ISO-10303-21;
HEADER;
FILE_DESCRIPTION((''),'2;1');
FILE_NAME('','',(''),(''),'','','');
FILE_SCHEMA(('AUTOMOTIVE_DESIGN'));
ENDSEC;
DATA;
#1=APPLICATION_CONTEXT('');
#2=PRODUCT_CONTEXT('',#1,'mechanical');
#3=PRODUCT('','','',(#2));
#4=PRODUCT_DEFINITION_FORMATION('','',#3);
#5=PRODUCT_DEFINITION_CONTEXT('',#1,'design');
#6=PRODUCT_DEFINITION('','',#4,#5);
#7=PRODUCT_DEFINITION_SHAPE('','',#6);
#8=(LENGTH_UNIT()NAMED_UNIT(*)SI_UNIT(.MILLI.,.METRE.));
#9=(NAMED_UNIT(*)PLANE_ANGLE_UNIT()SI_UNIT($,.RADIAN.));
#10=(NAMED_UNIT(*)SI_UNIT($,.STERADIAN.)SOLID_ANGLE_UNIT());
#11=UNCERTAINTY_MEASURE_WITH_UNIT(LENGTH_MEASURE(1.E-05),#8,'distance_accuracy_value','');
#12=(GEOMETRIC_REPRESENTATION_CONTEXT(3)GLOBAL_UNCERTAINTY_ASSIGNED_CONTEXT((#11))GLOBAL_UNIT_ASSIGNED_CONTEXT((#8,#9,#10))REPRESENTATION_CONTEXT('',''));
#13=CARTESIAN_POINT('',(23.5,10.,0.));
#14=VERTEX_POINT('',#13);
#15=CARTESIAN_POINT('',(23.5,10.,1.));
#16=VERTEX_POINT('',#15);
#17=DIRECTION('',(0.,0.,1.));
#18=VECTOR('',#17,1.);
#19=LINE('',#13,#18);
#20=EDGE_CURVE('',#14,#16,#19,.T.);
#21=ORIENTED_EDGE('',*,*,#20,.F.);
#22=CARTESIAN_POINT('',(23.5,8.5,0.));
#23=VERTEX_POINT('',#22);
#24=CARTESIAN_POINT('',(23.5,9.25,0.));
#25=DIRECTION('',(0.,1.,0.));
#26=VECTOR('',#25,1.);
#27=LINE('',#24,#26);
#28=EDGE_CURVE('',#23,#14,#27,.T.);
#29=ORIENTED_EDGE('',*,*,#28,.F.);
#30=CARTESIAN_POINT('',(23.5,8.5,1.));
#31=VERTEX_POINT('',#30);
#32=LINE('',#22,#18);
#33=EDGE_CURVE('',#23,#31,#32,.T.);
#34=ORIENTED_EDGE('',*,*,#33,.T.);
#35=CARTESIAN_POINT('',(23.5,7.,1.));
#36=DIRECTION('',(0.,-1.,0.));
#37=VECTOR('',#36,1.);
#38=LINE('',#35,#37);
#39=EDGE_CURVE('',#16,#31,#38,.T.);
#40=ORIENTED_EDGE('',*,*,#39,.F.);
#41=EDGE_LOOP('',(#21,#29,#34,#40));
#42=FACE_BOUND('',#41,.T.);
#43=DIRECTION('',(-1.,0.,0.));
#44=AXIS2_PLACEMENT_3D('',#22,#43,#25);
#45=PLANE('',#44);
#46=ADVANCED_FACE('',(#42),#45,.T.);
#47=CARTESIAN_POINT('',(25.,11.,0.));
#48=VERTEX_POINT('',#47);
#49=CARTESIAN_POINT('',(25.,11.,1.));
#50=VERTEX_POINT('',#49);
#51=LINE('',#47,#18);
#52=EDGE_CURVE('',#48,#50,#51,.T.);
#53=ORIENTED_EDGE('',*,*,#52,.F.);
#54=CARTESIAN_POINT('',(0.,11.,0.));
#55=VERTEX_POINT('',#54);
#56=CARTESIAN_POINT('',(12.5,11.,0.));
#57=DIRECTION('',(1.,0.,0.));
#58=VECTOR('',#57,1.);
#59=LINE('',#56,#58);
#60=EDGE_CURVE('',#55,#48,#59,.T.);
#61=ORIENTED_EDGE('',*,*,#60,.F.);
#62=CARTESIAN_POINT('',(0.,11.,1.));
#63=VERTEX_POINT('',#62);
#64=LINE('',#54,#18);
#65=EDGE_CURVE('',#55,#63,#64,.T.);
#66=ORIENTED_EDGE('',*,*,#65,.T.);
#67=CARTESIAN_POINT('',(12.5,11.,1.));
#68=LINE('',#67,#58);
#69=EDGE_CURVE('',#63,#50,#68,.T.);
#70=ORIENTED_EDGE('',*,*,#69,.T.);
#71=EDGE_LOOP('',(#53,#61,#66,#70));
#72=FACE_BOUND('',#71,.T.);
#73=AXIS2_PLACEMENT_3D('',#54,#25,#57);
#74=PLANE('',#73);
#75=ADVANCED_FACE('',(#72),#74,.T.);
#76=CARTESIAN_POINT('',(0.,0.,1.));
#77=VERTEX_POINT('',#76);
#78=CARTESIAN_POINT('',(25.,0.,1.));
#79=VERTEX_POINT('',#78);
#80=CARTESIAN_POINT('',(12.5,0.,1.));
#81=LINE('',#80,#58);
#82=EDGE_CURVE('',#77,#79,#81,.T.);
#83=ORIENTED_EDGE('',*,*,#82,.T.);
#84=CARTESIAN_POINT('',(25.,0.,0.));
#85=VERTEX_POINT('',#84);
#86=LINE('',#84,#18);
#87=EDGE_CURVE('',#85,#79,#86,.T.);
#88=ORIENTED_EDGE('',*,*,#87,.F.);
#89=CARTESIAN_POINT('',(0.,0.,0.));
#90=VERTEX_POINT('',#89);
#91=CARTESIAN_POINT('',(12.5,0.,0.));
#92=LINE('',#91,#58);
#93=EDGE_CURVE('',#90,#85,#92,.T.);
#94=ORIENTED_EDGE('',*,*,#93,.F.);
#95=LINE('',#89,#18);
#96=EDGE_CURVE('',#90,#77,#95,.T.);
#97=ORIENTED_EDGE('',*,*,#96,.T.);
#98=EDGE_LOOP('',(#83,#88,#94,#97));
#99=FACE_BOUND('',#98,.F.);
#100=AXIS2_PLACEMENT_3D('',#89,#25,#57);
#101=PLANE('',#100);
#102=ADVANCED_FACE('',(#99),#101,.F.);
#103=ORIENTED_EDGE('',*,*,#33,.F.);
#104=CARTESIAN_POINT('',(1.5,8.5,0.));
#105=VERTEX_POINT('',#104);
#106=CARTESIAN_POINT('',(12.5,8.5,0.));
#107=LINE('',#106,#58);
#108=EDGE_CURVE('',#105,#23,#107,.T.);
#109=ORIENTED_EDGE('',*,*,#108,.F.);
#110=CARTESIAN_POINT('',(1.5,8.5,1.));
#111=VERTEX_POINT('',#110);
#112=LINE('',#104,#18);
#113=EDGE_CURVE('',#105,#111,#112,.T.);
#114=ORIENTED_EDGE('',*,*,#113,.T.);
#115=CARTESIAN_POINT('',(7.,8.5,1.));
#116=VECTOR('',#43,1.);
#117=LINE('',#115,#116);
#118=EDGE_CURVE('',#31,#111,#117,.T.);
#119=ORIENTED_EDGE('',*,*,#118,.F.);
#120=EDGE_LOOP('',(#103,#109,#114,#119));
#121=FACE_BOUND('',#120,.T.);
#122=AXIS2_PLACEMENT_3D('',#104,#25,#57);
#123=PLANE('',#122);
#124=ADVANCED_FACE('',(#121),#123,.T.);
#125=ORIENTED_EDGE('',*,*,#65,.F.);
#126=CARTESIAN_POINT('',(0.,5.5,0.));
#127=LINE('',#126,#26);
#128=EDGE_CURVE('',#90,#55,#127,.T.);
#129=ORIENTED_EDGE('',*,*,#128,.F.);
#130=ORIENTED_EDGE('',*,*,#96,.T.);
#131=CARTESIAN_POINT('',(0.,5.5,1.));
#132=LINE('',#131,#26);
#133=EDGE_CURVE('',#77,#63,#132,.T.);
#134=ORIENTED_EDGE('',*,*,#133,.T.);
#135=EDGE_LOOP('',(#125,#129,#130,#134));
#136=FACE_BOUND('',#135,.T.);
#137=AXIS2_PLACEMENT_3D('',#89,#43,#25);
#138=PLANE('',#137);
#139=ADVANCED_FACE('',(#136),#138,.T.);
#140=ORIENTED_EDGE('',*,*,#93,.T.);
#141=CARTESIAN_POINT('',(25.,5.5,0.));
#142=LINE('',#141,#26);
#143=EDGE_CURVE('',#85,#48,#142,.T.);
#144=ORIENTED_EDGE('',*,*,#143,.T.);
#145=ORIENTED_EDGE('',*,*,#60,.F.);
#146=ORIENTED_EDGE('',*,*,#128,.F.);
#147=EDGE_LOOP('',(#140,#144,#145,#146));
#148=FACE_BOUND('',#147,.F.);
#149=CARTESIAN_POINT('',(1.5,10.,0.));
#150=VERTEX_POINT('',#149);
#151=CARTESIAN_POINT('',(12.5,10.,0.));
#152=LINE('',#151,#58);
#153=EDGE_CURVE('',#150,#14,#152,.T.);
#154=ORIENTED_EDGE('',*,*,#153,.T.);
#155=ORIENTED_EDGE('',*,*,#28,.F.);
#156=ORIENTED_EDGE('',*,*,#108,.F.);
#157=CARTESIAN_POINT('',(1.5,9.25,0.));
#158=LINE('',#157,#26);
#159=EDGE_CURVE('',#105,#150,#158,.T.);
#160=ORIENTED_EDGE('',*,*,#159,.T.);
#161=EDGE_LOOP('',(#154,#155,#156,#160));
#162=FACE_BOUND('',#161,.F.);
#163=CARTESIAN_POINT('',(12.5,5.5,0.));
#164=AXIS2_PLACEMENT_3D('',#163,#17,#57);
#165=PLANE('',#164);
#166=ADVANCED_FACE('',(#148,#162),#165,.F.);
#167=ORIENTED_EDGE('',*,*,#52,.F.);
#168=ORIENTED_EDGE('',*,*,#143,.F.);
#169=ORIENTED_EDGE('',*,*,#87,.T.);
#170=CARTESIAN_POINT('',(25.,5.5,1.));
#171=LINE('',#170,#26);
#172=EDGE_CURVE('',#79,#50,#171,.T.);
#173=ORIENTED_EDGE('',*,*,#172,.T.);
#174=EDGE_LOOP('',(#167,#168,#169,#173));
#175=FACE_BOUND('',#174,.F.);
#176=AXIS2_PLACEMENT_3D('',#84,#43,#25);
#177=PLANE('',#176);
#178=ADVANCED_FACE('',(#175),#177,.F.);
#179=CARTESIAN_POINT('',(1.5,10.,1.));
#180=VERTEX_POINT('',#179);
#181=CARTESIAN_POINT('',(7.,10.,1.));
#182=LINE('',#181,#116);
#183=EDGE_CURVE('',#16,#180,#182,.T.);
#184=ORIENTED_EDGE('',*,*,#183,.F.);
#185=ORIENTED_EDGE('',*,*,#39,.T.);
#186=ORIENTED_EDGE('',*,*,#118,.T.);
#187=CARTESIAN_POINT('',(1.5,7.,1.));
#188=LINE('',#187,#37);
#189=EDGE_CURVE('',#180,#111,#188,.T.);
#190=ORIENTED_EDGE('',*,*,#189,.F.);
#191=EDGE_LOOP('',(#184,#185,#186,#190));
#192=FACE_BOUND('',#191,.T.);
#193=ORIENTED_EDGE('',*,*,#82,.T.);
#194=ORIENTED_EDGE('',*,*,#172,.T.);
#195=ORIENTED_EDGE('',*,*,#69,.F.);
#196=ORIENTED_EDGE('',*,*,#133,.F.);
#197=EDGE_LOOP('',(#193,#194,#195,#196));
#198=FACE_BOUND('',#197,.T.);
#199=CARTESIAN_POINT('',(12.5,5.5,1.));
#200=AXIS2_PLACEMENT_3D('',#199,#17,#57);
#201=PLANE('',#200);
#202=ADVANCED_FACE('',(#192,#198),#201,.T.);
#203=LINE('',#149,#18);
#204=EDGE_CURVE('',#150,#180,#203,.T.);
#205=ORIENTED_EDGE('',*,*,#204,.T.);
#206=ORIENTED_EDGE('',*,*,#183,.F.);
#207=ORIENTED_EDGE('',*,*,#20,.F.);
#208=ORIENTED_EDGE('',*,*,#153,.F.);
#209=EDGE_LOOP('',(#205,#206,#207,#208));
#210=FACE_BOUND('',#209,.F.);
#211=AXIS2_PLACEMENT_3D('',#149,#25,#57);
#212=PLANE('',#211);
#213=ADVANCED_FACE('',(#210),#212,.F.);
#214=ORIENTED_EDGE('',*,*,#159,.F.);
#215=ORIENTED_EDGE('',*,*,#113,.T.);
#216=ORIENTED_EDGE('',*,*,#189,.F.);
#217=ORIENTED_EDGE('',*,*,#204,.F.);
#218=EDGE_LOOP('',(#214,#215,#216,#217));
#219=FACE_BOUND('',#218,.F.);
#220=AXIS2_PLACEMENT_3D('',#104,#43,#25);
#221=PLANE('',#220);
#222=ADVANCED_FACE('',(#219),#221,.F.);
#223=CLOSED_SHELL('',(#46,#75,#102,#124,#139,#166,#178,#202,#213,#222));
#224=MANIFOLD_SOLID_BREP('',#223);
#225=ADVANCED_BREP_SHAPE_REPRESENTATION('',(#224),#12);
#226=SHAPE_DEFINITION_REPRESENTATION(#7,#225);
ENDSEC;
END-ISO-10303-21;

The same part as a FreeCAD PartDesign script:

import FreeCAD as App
import Part
import Sketcher

V = App.Vector
Q = App.Units.Quantity

doc = App.newDocument("Part")
params = doc.addObject("Spreadsheet::Sheet", "Params")
for row, (alias, value) in enumerate([
    ("sketch1_width", "22 mm"),
    ("sketch1_height", "1.5 mm"),
    ("pad1_length", "2 mm"),
    ("sketch2_width", "25 mm"),
    ("sketch2_height", "11 mm"),
    ("pad2_length", "1 mm"),
], start=1):
    params.set(f"A{row}", alias)
    params.set(f"B{row}", "=" + value)
    params.setAlias(f"B{row}", alias)

body = doc.addObject("PartDesign::Body", "Body")

# Sketch on XY plane
sketch1 = body.newObject("Sketcher::SketchObject", "Sketch")
sketch1.AttachmentSupport = (doc.getObject("XY_Plane"), [""])
sketch1.MapMode = "FlatFace"
sketch1.addGeometry([
    Part.LineSegment(V(1.5, 10, 0), V(1.5, 8.5, 0)),
    Part.LineSegment(V(1.5, 8.5, 0), V(23.5, 8.5, 0)),
    Part.LineSegment(V(23.5, 8.5, 0), V(23.5, 10, 0)),
    Part.LineSegment(V(23.5, 10, 0), V(1.5, 10, 0)),
], False)
sketch1.addConstraint([
    Sketcher.Constraint("Coincident", 0, 2, 1, 1),
    Sketcher.Constraint("Coincident", 1, 2, 2, 1),
    Sketcher.Constraint("Coincident", 2, 2, 3, 1),
    Sketcher.Constraint("Coincident", 3, 2, 0, 1),
    Sketcher.Constraint("Vertical", 0),
    Sketcher.Constraint("Horizontal", 1),
    Sketcher.Constraint("Vertical", 2),
    Sketcher.Constraint("Horizontal", 3),
    Sketcher.Constraint("DistanceX", 1, 1, 1, 2, Q("22 mm")),
    Sketcher.Constraint("DistanceY", 0, 2, 0, 1, Q("1.5 mm")),
    Sketcher.Constraint("DistanceY", -1, 1, 2, 2, Q("10 mm")),
    Sketcher.Constraint("DistanceX", -1, 1, 0, 2, Q("1.5 mm")),
])
sketch1.setExpression("Constraints[8]", "Params.sketch1_width")
sketch1.setExpression("Constraints[9]", "Params.sketch1_height")
pad1 = body.newObject("PartDesign::Pad", "Pad")
pad1.Profile = sketch1
pad1.setExpression("Length", "Params.pad1_length")
body2 = doc.addObject("PartDesign::Body", "Body001")

# Sketch on XY plane
sketch2 = body2.newObject("Sketcher::SketchObject", "Sketch001")
sketch2.AttachmentSupport = (doc.getObject("XY_Plane001"), [""])
sketch2.MapMode = "FlatFace"
sketch2.addGeometry([
    Part.LineSegment(V(0, 11, 0), V(0, 0, 0)),
    Part.LineSegment(V(0, 0, 0), V(25, 0, 0)),
    Part.LineSegment(V(25, 0, 0), V(25, 11, 0)),
    Part.LineSegment(V(25, 11, 0), V(0, 11, 0)),
], False)
sketch2.addConstraint([
    Sketcher.Constraint("Coincident", 0, 2, 1, 1),
    Sketcher.Constraint("Coincident", 1, 2, 2, 1),
    Sketcher.Constraint("Coincident", 2, 2, 3, 1),
    Sketcher.Constraint("Coincident", 3, 2, 0, 1),
    Sketcher.Constraint("Vertical", 0),
    Sketcher.Constraint("Horizontal", 1),
    Sketcher.Constraint("Vertical", 2),
    Sketcher.Constraint("Horizontal", 3),
    Sketcher.Constraint("Coincident", 0, 2, -1, 1),
    Sketcher.Constraint("DistanceX", 1, 1, 1, 2, Q("25 mm")),
    Sketcher.Constraint("DistanceY", 0, 2, 0, 1, Q("11 mm")),
])
sketch2.setExpression("Constraints[9]", "Params.sketch2_width")
sketch2.setExpression("Constraints[10]", "Params.sketch2_height")
pad2 = body2.newObject("PartDesign::Pad", "Pad001")
pad2.Profile = sketch2
pad2.setExpression("Length", "Params.pad2_length")
doc.recompute()

boolean = body2.newObject("PartDesign::Boolean", "Boolean")
boolean.Type = "Cut"
boolean.addObjects([body])

doc.recompute()
